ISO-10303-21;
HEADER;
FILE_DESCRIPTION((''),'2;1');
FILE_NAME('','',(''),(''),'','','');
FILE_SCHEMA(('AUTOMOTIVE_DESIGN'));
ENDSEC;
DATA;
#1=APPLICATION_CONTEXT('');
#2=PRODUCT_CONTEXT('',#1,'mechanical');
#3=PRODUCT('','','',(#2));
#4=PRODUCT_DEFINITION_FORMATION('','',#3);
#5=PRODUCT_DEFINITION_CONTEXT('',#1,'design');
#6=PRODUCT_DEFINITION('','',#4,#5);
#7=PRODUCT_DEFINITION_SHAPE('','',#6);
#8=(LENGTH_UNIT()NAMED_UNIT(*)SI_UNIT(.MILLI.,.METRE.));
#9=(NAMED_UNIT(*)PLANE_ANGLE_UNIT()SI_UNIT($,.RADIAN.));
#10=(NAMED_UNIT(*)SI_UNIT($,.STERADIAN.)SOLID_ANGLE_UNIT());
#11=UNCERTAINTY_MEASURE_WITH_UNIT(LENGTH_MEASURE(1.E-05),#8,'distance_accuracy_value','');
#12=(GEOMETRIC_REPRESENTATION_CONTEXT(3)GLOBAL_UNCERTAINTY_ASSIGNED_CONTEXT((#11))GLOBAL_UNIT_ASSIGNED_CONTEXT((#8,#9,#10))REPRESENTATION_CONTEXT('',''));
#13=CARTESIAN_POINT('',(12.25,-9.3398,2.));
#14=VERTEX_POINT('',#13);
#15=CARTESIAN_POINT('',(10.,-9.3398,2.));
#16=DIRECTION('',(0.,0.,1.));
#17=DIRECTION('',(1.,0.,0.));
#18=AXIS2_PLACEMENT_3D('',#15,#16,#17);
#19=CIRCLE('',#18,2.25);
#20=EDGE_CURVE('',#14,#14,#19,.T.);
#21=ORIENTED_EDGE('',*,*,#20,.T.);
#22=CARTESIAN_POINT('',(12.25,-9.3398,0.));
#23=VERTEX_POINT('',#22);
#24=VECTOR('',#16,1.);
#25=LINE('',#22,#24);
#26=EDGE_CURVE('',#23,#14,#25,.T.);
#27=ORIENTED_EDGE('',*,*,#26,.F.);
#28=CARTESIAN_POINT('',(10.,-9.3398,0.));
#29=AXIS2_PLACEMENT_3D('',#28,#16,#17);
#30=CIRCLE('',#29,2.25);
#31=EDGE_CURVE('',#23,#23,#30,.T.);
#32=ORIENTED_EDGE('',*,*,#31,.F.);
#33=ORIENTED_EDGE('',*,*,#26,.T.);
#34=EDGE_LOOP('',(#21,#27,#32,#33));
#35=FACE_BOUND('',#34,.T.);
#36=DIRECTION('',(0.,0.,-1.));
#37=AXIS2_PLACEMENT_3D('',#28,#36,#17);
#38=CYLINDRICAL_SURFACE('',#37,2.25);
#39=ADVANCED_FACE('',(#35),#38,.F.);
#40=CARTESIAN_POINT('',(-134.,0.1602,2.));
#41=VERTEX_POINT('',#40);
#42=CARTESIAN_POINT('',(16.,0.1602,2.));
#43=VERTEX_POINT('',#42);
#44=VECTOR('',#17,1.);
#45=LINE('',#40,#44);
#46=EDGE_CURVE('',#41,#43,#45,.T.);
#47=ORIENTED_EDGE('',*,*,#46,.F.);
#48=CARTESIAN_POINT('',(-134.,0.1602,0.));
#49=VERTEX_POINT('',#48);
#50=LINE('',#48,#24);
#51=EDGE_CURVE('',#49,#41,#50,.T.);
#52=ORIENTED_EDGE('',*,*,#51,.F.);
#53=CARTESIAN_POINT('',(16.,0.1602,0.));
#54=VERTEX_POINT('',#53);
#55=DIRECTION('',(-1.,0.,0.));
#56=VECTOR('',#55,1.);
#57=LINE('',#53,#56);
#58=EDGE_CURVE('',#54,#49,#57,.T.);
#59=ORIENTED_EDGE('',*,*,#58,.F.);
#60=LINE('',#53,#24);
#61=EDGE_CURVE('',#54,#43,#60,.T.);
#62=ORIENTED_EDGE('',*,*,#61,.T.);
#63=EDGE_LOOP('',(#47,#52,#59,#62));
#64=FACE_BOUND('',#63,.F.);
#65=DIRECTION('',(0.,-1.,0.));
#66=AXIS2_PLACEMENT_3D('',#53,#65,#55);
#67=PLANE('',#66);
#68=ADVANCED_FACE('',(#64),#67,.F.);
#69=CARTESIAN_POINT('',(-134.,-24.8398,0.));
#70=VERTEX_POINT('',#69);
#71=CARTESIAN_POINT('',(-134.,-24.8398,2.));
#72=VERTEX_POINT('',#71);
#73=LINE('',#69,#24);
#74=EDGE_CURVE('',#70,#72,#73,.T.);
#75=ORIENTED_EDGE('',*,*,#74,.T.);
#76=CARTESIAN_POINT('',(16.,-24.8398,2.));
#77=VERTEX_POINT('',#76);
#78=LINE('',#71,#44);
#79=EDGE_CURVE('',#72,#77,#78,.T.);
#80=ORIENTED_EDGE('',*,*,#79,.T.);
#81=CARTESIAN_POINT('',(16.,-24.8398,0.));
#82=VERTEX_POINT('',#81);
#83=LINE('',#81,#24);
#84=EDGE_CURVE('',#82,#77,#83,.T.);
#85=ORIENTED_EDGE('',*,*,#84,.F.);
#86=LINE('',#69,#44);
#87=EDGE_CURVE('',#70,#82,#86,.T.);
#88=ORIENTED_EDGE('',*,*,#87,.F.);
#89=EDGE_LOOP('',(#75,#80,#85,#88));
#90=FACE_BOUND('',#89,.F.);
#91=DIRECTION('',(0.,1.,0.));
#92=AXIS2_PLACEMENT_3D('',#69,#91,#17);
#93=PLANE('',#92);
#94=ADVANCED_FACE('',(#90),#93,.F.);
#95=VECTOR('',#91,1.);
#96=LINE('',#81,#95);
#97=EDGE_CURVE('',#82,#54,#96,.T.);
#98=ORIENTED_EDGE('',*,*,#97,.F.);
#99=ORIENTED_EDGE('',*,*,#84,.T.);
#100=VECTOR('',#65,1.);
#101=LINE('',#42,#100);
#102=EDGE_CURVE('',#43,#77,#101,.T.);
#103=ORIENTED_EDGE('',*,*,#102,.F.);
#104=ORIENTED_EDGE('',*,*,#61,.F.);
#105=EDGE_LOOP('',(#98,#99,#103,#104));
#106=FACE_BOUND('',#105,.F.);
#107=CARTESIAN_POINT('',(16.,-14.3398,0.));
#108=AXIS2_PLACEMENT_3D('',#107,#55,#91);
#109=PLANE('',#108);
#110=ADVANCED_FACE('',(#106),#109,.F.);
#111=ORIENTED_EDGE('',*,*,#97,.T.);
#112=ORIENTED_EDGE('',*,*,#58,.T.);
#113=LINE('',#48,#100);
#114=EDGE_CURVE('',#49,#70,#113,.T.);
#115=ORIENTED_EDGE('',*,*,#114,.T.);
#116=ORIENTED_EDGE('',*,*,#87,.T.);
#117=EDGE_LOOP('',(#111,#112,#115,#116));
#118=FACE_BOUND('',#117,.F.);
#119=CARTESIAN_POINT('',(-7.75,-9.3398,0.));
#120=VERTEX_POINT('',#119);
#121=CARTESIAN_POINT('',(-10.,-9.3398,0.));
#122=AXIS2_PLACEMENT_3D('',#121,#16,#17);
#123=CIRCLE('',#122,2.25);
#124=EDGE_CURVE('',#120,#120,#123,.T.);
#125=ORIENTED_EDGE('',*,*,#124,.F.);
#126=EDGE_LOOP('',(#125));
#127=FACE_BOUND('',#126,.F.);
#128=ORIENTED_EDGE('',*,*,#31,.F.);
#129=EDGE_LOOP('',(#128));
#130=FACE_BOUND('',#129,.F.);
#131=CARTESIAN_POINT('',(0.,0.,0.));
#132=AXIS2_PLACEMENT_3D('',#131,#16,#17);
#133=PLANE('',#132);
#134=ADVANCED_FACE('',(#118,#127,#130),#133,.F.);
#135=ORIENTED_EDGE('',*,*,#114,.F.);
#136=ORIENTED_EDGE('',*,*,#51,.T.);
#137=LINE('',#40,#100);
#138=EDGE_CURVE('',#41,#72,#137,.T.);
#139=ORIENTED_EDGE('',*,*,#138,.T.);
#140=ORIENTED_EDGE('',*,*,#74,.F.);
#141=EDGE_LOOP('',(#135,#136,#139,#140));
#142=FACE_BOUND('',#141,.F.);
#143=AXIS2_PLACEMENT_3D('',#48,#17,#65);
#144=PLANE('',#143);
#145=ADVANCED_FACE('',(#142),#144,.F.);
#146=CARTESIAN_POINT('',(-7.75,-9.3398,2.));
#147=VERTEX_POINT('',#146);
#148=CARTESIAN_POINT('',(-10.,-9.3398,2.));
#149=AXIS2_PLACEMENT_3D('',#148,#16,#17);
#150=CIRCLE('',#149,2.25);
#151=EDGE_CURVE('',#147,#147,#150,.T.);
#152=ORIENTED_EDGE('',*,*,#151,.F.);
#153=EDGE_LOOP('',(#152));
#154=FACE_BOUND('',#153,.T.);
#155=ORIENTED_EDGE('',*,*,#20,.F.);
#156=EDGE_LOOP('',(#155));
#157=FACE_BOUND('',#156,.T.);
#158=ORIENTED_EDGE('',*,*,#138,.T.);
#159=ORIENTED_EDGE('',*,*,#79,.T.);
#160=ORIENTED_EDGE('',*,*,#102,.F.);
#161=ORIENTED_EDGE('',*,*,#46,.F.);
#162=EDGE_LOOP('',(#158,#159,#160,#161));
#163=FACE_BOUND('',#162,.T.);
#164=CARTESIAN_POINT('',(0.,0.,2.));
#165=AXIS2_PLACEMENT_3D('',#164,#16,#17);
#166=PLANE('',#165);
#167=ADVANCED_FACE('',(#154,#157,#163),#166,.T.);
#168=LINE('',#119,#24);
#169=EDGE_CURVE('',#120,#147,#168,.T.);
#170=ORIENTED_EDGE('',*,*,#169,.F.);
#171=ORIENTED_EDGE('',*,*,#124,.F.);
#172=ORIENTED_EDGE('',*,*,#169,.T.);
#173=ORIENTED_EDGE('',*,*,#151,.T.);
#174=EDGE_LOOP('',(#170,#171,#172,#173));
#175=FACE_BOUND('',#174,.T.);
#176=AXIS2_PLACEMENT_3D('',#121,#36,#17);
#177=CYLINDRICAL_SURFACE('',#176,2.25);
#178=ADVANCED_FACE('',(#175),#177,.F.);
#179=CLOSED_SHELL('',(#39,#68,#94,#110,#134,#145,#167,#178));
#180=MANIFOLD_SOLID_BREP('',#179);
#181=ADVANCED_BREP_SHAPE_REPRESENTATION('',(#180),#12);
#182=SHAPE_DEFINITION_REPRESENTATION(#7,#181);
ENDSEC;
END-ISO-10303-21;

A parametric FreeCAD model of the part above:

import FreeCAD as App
import Part
import Sketcher

V = App.Vector

doc = App.newDocument("Part")
body = doc.addObject("PartDesign::Body", "Body")

sketch1 = body.newObject("Sketcher::SketchObject", "Sketch")
sketch1.AttachmentSupport = (doc.getObject("XY_Plane"), [""])
sketch1.MapMode = "FlatFace"
sketch1.addGeometry(Part.LineSegment(V(16, 0.1602, 0), V(-134, 0.1602, 0)), False)
sketch1.addGeometry(Part.LineSegment(V(-134, 0.1602, 0), V(-134, -24.8398, 0)), False)
sketch1.addGeometry(Part.LineSegment(V(-134, -24.8398, 0), V(16, -24.8398, 0)), False)
sketch1.addGeometry(Part.LineSegment(V(16, -24.8398, 0), V(16, 0.1602, 0)), False)
sketch1.addGeometry(Part.Circle(V(-10, -9.3398, 0), V(0, 0, 1), 2.25), False)
sketch1.addGeometry(Part.Circle(V(10, -9.3398, 0), V(0, 0, 1), 2.25), False)
sketch1.addConstraint(Sketcher.Constraint("Coincident", 0, 2, 1, 1))
sketch1.addConstraint(Sketcher.Constraint("Coincident", 1, 2, 2, 1))
sketch1.addConstraint(Sketcher.Constraint("Coincident", 2, 2, 3, 1))
sketch1.addConstraint(Sketcher.Constraint("Coincident", 3, 2, 0, 1))
sketch1.addConstraint(Sketcher.Constraint("Horizontal", 0))
sketch1.addConstraint(Sketcher.Constraint("Vertical", 1))
sketch1.addConstraint(Sketcher.Constraint("Horizontal", 2))
sketch1.addConstraint(Sketcher.Constraint("Vertical", 3))
sketch1.addConstraint(Sketcher.Constraint("Equal", 4, 5))
sketch1.addConstraint(Sketcher.Constraint("Symmetric", 4, 3, 5, 3, -2))
sketch1.addConstraint(Sketcher.Constraint("DistanceX", 0, 2, 0, 1, 150.0))
sketch1.addConstraint(Sketcher.Constraint("DistanceY", 1, 2, 1, 1, 25.0))
sketch1.addConstraint(Sketcher.Constraint("Diameter", 4, 4.5))
sketch1.addConstraint(Sketcher.Constraint("DistanceX", 4, 3, -1, 1, 10.0))
sketch1.addConstraint(Sketcher.Constraint("DistanceX", 0, 2, -1, 1, 134.0))
sketch1.addConstraint(Sketcher.Constraint("DistanceY", 4, 3, 0, 2, 9.5))
sketch1.addConstraint(Sketcher.Constraint("DistanceY", 4, 3, -1, 1, 9.3398))
pad1 = body.newObject("PartDesign::Pad", "Pad")
pad1.Profile = sketch1
pad1.Length = 2

doc.recompute()
